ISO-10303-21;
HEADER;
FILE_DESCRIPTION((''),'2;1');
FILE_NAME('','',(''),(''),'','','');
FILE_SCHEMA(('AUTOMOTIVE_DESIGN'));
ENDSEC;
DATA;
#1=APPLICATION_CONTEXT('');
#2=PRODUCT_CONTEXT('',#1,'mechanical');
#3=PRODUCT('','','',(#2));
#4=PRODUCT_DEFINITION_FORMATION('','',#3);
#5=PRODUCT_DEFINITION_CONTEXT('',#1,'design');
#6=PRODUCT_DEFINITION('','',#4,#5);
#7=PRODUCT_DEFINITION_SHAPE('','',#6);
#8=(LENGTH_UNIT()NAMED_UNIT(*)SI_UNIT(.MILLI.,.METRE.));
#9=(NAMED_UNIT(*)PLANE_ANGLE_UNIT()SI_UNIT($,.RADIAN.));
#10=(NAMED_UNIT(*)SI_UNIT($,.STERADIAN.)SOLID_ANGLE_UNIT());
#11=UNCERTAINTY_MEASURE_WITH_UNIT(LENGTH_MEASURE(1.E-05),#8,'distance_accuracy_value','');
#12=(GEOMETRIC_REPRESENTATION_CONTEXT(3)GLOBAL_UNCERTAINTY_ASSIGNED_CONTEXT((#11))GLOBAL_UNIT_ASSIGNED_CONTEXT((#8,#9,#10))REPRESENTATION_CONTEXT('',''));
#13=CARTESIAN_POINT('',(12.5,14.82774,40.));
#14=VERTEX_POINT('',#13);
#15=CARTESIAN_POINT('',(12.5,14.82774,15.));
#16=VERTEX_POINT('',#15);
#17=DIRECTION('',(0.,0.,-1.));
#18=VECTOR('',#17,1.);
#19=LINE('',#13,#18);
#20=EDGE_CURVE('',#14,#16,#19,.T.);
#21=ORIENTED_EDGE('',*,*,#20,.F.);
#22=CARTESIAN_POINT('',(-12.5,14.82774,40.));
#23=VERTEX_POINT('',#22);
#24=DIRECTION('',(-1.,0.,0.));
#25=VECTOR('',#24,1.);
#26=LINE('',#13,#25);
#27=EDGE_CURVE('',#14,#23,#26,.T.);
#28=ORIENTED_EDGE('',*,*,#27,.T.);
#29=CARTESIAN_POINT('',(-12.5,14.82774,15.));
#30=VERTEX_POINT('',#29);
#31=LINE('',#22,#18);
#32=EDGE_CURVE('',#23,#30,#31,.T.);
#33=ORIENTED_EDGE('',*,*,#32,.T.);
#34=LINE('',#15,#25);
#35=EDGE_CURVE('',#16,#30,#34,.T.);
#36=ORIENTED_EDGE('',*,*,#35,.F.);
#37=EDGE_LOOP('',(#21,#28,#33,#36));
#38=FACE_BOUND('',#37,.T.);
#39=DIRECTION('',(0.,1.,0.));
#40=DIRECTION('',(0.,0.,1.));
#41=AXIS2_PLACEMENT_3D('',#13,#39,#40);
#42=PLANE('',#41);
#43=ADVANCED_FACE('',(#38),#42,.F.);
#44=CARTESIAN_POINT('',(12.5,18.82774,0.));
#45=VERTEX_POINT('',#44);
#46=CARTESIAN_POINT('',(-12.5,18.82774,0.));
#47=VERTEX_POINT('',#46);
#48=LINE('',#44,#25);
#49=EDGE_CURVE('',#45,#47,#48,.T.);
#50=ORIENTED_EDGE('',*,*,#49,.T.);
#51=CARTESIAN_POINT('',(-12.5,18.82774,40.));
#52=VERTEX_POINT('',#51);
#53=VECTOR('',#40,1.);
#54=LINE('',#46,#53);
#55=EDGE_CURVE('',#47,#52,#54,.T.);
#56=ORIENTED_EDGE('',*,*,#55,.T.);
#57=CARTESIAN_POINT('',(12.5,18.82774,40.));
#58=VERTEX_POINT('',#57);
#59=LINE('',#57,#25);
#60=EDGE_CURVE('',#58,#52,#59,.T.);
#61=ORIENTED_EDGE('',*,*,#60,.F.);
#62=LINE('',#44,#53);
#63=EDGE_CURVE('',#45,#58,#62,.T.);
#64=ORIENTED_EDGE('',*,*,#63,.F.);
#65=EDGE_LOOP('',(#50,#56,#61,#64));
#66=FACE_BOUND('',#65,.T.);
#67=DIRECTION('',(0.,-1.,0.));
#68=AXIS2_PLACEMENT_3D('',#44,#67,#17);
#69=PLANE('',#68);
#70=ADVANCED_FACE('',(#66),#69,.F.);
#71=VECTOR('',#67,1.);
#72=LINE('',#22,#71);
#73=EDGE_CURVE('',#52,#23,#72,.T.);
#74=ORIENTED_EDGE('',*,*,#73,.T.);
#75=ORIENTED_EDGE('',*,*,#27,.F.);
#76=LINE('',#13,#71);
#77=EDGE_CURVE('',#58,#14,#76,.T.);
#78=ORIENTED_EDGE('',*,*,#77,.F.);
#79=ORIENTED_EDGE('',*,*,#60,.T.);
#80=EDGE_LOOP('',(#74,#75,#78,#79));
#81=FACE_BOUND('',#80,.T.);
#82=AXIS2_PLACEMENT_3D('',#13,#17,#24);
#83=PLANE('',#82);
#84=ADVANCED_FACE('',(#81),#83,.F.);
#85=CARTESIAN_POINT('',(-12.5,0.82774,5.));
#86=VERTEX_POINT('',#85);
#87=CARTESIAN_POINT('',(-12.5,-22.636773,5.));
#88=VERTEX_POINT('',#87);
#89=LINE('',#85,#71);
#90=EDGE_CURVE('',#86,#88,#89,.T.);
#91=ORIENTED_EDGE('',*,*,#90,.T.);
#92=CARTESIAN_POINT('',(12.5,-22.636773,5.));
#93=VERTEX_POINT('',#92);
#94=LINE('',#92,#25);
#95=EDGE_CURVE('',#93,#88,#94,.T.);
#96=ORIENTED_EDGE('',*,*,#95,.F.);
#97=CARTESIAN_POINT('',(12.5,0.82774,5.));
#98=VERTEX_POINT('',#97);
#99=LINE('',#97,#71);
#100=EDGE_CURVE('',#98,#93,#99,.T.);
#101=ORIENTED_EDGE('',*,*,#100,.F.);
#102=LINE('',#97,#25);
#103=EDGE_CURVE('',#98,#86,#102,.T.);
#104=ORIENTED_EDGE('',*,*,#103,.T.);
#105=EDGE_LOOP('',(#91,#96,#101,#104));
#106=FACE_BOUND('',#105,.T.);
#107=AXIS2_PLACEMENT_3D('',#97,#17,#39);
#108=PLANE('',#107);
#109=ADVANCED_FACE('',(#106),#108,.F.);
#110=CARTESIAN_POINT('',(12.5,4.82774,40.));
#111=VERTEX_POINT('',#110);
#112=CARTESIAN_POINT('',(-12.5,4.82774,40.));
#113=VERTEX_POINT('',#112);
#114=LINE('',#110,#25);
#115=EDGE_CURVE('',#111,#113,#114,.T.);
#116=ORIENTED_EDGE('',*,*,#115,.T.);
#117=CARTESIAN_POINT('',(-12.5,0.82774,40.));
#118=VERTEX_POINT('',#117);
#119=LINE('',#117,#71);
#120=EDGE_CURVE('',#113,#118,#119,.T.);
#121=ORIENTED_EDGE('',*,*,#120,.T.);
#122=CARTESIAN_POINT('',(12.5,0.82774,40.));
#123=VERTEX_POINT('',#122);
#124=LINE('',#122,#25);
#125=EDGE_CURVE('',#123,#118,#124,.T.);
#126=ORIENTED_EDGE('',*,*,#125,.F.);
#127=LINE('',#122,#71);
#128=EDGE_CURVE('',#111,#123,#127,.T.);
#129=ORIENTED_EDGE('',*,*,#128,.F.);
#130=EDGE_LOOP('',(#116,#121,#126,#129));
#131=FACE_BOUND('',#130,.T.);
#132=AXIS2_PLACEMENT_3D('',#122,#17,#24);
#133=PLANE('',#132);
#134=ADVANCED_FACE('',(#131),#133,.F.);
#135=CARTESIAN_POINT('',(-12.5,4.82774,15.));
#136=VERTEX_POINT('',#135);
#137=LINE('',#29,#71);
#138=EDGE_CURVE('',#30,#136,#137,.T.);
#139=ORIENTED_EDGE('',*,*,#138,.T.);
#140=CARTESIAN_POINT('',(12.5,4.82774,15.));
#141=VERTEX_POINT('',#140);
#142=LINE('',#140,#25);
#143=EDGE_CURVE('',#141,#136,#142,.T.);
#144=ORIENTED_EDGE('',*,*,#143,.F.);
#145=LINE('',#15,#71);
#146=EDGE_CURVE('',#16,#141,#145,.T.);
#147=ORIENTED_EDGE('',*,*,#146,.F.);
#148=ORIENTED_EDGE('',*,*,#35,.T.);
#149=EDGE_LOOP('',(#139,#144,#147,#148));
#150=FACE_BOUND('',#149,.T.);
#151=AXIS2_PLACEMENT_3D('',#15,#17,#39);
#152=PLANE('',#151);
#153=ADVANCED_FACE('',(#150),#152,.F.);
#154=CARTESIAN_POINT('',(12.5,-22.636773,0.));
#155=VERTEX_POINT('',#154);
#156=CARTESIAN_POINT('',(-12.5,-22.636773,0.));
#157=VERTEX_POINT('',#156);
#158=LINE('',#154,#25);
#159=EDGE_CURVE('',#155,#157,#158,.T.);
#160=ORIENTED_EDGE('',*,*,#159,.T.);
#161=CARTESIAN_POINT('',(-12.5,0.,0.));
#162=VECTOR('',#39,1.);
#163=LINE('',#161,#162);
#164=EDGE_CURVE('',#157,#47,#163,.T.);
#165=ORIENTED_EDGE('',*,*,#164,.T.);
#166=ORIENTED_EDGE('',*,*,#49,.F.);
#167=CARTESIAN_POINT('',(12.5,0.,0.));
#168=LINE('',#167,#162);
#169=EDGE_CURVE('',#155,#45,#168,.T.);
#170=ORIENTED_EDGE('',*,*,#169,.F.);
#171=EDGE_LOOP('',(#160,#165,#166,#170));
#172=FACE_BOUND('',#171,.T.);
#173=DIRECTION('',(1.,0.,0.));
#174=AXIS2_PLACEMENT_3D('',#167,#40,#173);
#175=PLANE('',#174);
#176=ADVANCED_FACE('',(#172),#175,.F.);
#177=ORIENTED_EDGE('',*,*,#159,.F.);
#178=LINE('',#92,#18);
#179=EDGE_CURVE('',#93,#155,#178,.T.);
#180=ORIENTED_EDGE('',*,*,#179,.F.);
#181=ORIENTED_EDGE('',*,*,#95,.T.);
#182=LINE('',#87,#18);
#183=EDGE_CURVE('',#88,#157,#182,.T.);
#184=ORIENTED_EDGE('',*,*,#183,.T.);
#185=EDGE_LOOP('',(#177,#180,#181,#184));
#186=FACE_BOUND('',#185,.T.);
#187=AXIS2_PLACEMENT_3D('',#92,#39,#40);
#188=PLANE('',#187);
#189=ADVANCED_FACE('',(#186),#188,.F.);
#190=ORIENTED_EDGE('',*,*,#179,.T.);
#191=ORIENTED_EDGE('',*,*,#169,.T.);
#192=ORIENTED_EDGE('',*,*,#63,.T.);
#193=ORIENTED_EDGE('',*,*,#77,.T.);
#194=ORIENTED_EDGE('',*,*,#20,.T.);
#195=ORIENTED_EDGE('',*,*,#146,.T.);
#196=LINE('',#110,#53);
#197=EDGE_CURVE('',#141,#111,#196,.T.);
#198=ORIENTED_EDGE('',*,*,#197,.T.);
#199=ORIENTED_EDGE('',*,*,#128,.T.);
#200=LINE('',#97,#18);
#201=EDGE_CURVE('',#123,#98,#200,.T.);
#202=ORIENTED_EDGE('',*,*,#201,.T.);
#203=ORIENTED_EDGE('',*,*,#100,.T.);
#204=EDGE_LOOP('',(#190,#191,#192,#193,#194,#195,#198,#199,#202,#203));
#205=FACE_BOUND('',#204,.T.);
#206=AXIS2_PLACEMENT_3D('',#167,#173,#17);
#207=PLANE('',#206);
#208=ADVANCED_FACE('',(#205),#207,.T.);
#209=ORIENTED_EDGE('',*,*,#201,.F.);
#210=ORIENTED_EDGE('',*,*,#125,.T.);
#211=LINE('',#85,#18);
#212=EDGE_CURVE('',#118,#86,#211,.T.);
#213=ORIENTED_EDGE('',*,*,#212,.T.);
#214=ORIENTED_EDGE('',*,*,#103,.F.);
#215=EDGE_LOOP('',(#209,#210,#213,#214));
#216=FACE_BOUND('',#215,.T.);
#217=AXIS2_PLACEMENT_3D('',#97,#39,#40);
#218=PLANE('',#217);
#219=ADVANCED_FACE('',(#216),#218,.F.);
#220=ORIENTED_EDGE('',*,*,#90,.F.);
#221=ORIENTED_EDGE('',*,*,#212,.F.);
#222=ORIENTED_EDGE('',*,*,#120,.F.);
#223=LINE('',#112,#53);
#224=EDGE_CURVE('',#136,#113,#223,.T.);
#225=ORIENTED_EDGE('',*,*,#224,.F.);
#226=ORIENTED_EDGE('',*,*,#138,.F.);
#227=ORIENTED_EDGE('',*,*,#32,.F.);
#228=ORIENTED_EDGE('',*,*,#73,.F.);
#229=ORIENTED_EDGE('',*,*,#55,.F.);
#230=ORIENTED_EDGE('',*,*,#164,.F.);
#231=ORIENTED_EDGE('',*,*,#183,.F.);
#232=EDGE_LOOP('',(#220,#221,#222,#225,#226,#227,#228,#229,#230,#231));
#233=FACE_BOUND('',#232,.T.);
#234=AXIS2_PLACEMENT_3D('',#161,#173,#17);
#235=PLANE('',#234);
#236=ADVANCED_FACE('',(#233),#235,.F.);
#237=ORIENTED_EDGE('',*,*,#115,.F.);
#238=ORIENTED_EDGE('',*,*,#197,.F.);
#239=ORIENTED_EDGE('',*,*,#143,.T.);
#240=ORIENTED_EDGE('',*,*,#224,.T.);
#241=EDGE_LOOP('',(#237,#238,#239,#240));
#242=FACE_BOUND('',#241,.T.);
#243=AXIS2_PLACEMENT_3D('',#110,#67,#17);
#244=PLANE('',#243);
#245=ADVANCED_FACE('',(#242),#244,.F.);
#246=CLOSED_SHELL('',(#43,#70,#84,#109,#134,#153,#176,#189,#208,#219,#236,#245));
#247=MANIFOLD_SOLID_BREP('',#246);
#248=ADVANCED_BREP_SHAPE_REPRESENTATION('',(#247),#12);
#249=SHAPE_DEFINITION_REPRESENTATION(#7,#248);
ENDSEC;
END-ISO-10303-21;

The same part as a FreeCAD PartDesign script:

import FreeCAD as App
import Part
import Sketcher
from FreeCAD import Vector


def add_polygon(sketch, points):
    """Adds a closed chain of lines whose ends are joined by coincident constraints."""
    first, n = sketch.GeometryCount, len(points)
    for a, b in zip(points, points[1:] + points[:1]):
        sketch.addGeometry(Part.LineSegment(App.Vector(*a, 0), App.Vector(*b, 0)), False)
    for i in range(n):
        sketch.addConstraint(Sketcher.Constraint("Coincident", first + i, 2, first + (i + 1) % n, 1))

doc = App.newDocument("Part")
params = doc.addObject("Spreadsheet::Sheet", "Params")
for row, (alias, value) in enumerate([
    ("sketch1_width", "4 mm"),
    ("sketch1_width2", "10 mm"),
    ("sketch1_height", "25 mm"),
    ("sketch1_height2", "35 mm"),
    ("sketch1_height3", "5 mm"),
    ("pad1_length", "25 mm"),
], start=1):
    params.set(f"A{row}", alias)
    params.set(f"B{row}", "=" + value)
    params.setAlias(f"B{row}", alias)

body = doc.addObject("PartDesign::Body", "Body")

# Sketch on YZ plane
sketch1 = doc.addObject("Sketcher::SketchObject", "Sketch")
body.addObject(sketch1)
sketch1.AttachmentSupport = (doc.YZ_Plane, [""])
sketch1.MapMode = "FlatFace"
add_polygon(sketch1, [(18.8, 40), (14.8, 40), (14.8, 15), (4.8, 15), (4.8, 40), (0.8, 40), (0.8, 5), (-22.6, 5), (-22.6, 0), (18.8, 0)])  # lines 0-9
sketch1.addConstraint([
    Sketcher.Constraint("Horizontal", 0),
    Sketcher.Constraint("Vertical", 1),
    Sketcher.Constraint("Horizontal", 2),
    Sketcher.Constraint("Vertical", 3),
    Sketcher.Constraint("Horizontal", 4),
    Sketcher.Constraint("Vertical", 5),
    Sketcher.Constraint("Horizontal", 6),
    Sketcher.Constraint("Vertical", 7),
    Sketcher.Constraint("Horizontal", 8),
    Sketcher.Constraint("Vertical", 9),
    Sketcher.Constraint("PointOnObject", 7, 2, -1),
    Sketcher.Constraint("Horizontal", 0, 2, 3, 2),
    Sketcher.Constraint("Equal", 0, 4),
    Sketcher.Constraint("DistanceX", 0, 2, 0, 1, 4.0),
    Sketcher.Constraint("DistanceX", 2, 2, 2, 1, 10.0),
    Sketcher.Constraint("DistanceY", 1, 2, 1, 1, 25.0),
    Sketcher.Constraint("DistanceY", 5, 2, 5, 1, 35.0),
    Sketcher.Constraint("DistanceY", 7, 2, 7, 1, 5.0),
    Sketcher.Constraint("DistanceX", 6, 2, 6, 1, 23.464513),
    Sketcher.Constraint("DistanceX", -1, 1, 0, 2, 14.82774),
])
sketch1.setExpression("Constraints[23]", "Params.sketch1_width")
sketch1.setExpression("Constraints[24]", "Params.sketch1_width2")
sketch1.setExpression("Constraints[25]", "Params.sketch1_height")
sketch1.setExpression("Constraints[26]", "Params.sketch1_height2")
sketch1.setExpression("Constraints[27]", "Params.sketch1_height3")
pad1 = doc.addObject("PartDesign::Pad", "Pad")
body.addObject(pad1)
pad1.Profile = sketch1
pad1.setExpression("Length", "Params.pad1_length")
pad1.Midplane = True

doc.recompute()
